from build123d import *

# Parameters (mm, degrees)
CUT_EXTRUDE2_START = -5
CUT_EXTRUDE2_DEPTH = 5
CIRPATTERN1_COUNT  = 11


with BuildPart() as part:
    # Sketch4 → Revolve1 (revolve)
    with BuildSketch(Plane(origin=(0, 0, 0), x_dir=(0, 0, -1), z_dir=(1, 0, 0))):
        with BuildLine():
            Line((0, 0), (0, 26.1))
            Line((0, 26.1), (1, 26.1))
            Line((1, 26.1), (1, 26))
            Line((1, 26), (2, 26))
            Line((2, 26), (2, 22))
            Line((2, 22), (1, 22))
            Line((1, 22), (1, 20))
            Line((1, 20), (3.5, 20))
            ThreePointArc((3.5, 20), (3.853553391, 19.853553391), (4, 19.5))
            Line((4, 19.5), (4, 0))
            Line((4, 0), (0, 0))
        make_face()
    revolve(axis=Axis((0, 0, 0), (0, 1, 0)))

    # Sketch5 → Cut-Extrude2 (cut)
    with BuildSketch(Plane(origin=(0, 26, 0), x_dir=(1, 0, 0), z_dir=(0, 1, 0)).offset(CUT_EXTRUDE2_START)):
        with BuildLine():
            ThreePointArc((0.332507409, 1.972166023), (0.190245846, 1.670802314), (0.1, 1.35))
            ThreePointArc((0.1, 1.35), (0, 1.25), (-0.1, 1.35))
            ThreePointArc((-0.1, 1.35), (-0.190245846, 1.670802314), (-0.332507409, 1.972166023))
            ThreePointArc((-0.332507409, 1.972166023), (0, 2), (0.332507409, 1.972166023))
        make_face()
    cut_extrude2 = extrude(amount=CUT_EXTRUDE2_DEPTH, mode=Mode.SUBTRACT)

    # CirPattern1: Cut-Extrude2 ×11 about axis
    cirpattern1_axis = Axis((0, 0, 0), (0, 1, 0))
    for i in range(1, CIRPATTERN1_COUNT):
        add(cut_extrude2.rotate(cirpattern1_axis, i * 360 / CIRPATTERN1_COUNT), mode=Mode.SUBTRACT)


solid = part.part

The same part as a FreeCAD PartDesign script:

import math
import FreeCAD as App
import Part
import Sketcher
Q = App.Units.Quantity

doc = App.newDocument("Part")
body = doc.addObject("PartDesign::Body", "Body")

# Sketch on YZ plane
sketch1 = doc.addObject("Sketcher::SketchObject", "Sketch")
body.addObject(sketch1)
sketch1.AttachmentSupport = (doc.YZ_Plane, [""])
sketch1.MapMode = "FlatFace"
sketch1.addGeometry(Part.LineSegment(App.Vector(26.1, 0, 0), App.Vector(0, 0, 0)), False)
sketch1.addGeometry(Part.LineSegment(App.Vector(0, 0, 0), App.Vector(0, -4, 0)), False)
sketch1.addGeometry(Part.LineSegment(App.Vector(0, -4, 0), App.Vector(19.5, -4, 0)), False)
sketch1.addGeometry(Part.ArcOfCircle(Part.Circle(App.Vector(19.5, -3.5, 0), App.Vector(0, 0, 1), 0.5), math.radians(-90), math.radians(0)), False)
sketch1.addGeometry(Part.LineSegment(App.Vector(20, -3.5, 0), App.Vector(20, -1, 0)), False)
sketch1.addGeometry(Part.LineSegment(App.Vector(20, -1, 0), App.Vector(22, -1, 0)), False)
sketch1.addGeometry(Part.LineSegment(App.Vector(22, -1, 0), App.Vector(22, -2, 0)), False)
sketch1.addGeometry(Part.LineSegment(App.Vector(22, -2, 0), App.Vector(26, -2, 0)), False)
sketch1.addGeometry(Part.LineSegment(App.Vector(26, -2, 0), App.Vector(26, -1, 0)), False)
sketch1.addGeometry(Part.LineSegment(App.Vector(26, -1, 0), App.Vector(26.1, -1, 0)), False)
sketch1.addGeometry(Part.LineSegment(App.Vector(26.1, -1, 0), App.Vector(26.1, 0, 0)), False)
sketch1.addConstraint(Sketcher.Constraint("Coincident", 0, 2, 1, 1))
sketch1.addConstraint(Sketcher.Constraint("Coincident", 1, 2, 2, 1))
sketch1.addConstraint(Sketcher.Constraint("Tangent", 2, 2, 3, 1))
sketch1.addConstraint(Sketcher.Constraint("Tangent", 3, 2, 4, 1))
sketch1.addConstraint(Sketcher.Constraint("Coincident", 4, 2, 5, 1))
sketch1.addConstraint(Sketcher.Constraint("Coincident", 5, 2, 6, 1))
sketch1.addConstraint(Sketcher.Constraint("Coincident", 6, 2, 7, 1))
sketch1.addConstraint(Sketcher.Constraint("Coincident", 7, 2, 8, 1))
sketch1.addConstraint(Sketcher.Constraint("Coincident", 8, 2, 9, 1))
sketch1.addConstraint(Sketcher.Constraint("Coincident", 9, 2, 10, 1))
sketch1.addConstraint(Sketcher.Constraint("Coincident", 10, 2, 0, 1))
sketch1.addConstraint(Sketcher.Constraint("Horizontal", 0))
sketch1.addConstraint(Sketcher.Constraint("Vertical", 1))
sketch1.addConstraint(Sketcher.Constraint("Horizontal", 2))
sketch1.addConstraint(Sketcher.Constraint("Vertical", 4))
sketch1.addConstraint(Sketcher.Constraint("Horizontal", 5))
sketch1.addConstraint(Sketcher.Constraint("Vertical", 6))
sketch1.addConstraint(Sketcher.Constraint("Horizontal", 7))
sketch1.addConstraint(Sketcher.Constraint("Vertical", 8))
sketch1.addConstraint(Sketcher.Constraint("Horizontal", 9))
sketch1.addConstraint(Sketcher.Constraint("Vertical", 10))
sketch1.addConstraint(Sketcher.Constraint("Coincident", 0, 2, -1, 1))
sketch1.addConstraint(Sketcher.Constraint("Horizontal", 5, 2, 8, 2))
sketch1.addConstraint(Sketcher.Constraint("Equal", 7, 1))
sketch1.addConstraint(Sketcher.Constraint("Equal", 8, 10))
sketch1.addConstraint(Sketcher.Constraint("Radius", 3, Q("0.5 mm")))
sketch1.addConstraint(Sketcher.Constraint("DistanceX", 5, 1, 5, 2, Q("2 mm")))
sketch1.addConstraint(Sketcher.Constraint("DistanceX", 7, 1, 7, 2, Q("4 mm")))
sketch1.addConstraint(Sketcher.Constraint("DistanceY", 6, 2, 6, 1, Q("1 mm")))
sketch1.addConstraint(Sketcher.Constraint("DistanceX", 0, 2, 0, 1, Q("26.1 mm")))
sketch1.addConstraint(Sketcher.Constraint("DistanceX", 2, 1, 2, 2, Q("19.5 mm")))
revolution = doc.addObject("PartDesign::Revolution", "Revolution")
body.addObject(revolution)
revolution.Profile = sketch1
revolution.ReferenceAxis = (sketch1, ["H_Axis"])
revolution.Angle = 360

# Sketch on XZ plane
sketch2 = doc.addObject("Sketcher::SketchObject", "Sketch001")
body.addObject(sketch2)
sketch2.AttachmentSupport = (doc.XZ_Plane, [""])
sketch2.MapMode = "FlatFace"
sketch2.AttachmentOffset = App.Placement(App.Vector(0, 0, -21), App.Rotation())
sketch2.addGeometry(Part.ArcOfCircle(Part.Circle(App.Vector(2.0637, -0.970681, 0), App.Vector(0, 0, 1), 2), math.radians(-169.067076), math.radians(-149.950852)), False)
sketch2.addGeometry(Part.ArcOfCircle(Part.Circle(App.Vector(0, 0, 0), App.Vector(0, 0, 1), 2), math.radians(-99.570073), math.radians(-80.429927)), False)
sketch2.addGeometry(Part.ArcOfCircle(Part.Circle(App.Vector(-2.0637, -0.970681, 0), App.Vector(0, 0, 1), 2), math.radians(-30.049148), math.radians(-10.932924)), False)
sketch2.addGeometry(Part.ArcOfCircle(Part.Circle(App.Vector(0, -1.35, 0), App.Vector(0, 0, 1), 0.1), math.radians(0), math.radians(180)), False)
sketch2.addConstraint(Sketcher.Constraint("Coincident", 0, 2, 1, 2))
sketch2.addConstraint(Sketcher.Constraint("Coincident", 1, 1, 2, 1))
sketch2.addConstraint(Sketcher.Constraint("Coincident", 2, 2, 3, 2))
sketch2.addConstraint(Sketcher.Constraint("Coincident", 3, 1, 0, 1))
sketch2.addConstraint(Sketcher.Constraint("Coincident", 1, 3, -1, 1))
sketch2.addConstraint(Sketcher.Constraint("Equal", 0, 1))
sketch2.addConstraint(Sketcher.Constraint("Equal", 1, 2))
sketch2.addConstraint(Sketcher.Constraint("Symmetric", 0, 3, 2, 3, -2))
sketch2.addConstraint(Sketcher.Constraint("PointOnObject", 3, 3, -2))
sketch2.addConstraint(Sketcher.Constraint("Horizontal", 3, 3, 2, 2))
sketch2.addConstraint(Sketcher.Constraint("Radius", 0, Q("2 mm")))
sketch2.addConstraint(Sketcher.Constraint("Radius", 3, Q("0.1 mm")))
sketch2.addConstraint(Sketcher.Constraint("DistanceY", 3, 3, -1, 1, Q("1.35 mm")))
sketch2.addConstraint(Sketcher.Constraint("DistanceX", -1, 1, 0, 3, Q("2.0637 mm")))
pocket1 = doc.addObject("PartDesign::Pocket", "Pocket")
body.addObject(pocket1)
pocket1.Profile = sketch2
pocket1.Length = 5
doc.recompute()

polarpattern = doc.addObject("PartDesign::PolarPattern", "PolarPattern")
body.addObject(polarpattern)
polarpattern.Originals = [pocket1]
polarpattern.Axis = (doc.Y_Axis, [""])
polarpattern.Angle = 360
polarpattern.Occurrences = 11
body.Tip = polarpattern

doc.recompute()
